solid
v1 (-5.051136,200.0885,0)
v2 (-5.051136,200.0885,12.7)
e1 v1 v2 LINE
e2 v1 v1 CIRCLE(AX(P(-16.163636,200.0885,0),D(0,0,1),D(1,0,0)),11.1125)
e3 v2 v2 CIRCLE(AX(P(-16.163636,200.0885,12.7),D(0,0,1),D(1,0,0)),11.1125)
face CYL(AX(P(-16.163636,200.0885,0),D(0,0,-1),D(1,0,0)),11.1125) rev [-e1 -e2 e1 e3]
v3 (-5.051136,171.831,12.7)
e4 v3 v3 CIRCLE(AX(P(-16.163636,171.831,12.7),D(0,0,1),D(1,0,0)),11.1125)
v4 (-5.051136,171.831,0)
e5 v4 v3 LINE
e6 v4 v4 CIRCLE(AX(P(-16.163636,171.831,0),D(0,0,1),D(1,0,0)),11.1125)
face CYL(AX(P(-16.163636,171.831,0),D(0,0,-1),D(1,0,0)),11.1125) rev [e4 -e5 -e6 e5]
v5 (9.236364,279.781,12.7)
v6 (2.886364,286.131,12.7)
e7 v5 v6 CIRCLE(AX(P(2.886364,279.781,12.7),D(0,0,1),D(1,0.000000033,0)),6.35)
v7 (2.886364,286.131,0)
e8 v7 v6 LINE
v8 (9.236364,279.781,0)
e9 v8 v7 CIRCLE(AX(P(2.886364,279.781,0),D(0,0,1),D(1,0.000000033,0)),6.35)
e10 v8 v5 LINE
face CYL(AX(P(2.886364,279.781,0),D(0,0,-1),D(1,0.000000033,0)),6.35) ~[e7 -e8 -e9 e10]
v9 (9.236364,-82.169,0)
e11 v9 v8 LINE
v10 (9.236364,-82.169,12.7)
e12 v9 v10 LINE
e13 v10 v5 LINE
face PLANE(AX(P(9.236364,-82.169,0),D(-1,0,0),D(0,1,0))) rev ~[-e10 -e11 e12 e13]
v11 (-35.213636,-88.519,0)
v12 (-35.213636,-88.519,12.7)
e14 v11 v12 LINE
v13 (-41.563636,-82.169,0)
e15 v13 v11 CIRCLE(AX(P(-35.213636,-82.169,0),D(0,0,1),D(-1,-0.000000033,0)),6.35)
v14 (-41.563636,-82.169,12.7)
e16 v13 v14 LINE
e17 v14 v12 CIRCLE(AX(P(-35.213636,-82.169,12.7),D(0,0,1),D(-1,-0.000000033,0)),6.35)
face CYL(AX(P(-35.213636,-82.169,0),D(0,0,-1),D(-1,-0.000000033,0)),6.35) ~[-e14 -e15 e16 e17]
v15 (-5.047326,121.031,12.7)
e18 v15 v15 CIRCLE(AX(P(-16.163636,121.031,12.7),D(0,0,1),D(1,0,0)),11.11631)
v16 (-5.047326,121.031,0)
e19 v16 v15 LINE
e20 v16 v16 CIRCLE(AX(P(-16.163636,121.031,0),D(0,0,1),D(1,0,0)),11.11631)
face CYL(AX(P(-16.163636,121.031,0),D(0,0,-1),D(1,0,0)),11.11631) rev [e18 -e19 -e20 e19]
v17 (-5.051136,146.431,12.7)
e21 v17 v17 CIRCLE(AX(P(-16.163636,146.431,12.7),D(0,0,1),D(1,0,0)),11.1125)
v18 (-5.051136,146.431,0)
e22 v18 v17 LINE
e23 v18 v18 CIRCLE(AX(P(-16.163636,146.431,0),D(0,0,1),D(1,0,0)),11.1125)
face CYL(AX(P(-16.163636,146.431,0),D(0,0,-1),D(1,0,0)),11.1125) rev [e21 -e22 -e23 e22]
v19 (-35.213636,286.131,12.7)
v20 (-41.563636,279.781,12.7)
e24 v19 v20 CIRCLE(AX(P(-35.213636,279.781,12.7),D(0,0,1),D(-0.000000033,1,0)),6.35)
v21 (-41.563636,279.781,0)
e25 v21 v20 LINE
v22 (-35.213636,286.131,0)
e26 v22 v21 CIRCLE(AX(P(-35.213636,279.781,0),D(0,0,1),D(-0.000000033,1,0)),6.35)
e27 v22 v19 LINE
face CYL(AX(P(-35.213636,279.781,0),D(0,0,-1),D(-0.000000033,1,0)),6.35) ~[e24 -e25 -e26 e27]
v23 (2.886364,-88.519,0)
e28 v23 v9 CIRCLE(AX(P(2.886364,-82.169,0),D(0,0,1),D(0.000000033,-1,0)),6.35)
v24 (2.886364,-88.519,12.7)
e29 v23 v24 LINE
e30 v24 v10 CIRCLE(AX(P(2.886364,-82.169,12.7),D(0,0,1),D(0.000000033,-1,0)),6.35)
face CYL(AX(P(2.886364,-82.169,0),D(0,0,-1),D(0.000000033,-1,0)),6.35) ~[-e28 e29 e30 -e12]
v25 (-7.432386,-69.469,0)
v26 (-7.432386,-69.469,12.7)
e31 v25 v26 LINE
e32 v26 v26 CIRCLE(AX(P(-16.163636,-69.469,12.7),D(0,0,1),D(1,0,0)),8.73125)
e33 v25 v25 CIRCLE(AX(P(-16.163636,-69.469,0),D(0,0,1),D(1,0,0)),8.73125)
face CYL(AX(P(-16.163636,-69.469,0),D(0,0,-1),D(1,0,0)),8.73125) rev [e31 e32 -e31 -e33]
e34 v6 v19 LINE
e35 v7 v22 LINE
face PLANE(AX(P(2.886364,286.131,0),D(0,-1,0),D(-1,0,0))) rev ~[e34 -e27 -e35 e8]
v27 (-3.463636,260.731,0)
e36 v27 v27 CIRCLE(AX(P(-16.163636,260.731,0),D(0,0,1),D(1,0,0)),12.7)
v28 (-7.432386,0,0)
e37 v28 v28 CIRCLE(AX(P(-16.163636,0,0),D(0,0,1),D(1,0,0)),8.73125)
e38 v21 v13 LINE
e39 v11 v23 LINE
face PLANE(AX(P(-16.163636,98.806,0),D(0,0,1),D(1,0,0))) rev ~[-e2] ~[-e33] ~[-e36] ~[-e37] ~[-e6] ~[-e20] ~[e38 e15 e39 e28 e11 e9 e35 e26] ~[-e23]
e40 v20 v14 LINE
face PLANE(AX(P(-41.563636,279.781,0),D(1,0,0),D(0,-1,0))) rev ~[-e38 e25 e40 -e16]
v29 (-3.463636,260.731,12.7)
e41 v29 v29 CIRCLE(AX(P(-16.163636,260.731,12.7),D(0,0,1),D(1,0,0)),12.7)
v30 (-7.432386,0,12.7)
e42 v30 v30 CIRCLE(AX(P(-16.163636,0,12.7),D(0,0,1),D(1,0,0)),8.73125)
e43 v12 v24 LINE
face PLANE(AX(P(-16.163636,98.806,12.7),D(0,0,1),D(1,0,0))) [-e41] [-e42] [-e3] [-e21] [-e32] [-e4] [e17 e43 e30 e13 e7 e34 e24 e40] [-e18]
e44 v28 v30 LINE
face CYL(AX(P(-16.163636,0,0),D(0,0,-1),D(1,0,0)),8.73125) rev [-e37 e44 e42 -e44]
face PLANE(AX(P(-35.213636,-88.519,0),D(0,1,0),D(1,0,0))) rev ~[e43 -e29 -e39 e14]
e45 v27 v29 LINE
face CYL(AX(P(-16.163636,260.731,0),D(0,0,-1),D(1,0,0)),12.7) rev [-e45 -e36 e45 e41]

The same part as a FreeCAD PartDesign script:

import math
import FreeCAD as App
import Part
import Sketcher
Q = App.Units.Quantity

doc = App.newDocument("Part")
body = doc.addObject("PartDesign::Body", "Body")

# Sketch on XY plane
sketch1 = doc.addObject("Sketcher::SketchObject", "Sketch")
body.addObject(sketch1)
sketch1.AttachmentSupport = (doc.XY_Plane, [""])
sketch1.MapMode = "FlatFace"
sketch1.addGeometry([
    Part.LineSegment(App.Vector(3, 286, 0), App.Vector(-35, 286, 0)),  # 0
    Part.ArcOfCircle(Part.Circle(App.Vector(-35, 280, 0), App.Vector(0, 0, 1), 6), math.radians(90), math.radians(180)),  # 1
    Part.LineSegment(App.Vector(-42, 280, 0), App.Vector(-42, -82, 0)),  # 2
    Part.ArcOfCircle(Part.Circle(App.Vector(-35, -82, 0), App.Vector(0, 0, 1), 6), math.radians(-180), math.radians(-90)),  # 3
    Part.LineSegment(App.Vector(-35, -89, 0), App.Vector(3, -89, 0)),  # 4
    Part.ArcOfCircle(Part.Circle(App.Vector(3, -82, 0), App.Vector(0, 0, 1), 6), math.radians(-90), math.radians(0)),  # 5
    Part.LineSegment(App.Vector(9, -82, 0), App.Vector(9, 280, 0)),  # 6
    Part.ArcOfCircle(Part.Circle(App.Vector(3, 280, 0), App.Vector(0, 0, 1), 6), math.radians(0), math.radians(90)),  # 7
    Part.Circle(App.Vector(-16, -69, 0), App.Vector(0, 0, 1), 9),  # 8
    Part.Circle(App.Vector(-16, 0, 0), App.Vector(0, 0, 1), 9),  # 9
    Part.Circle(App.Vector(-16, 121, 0), App.Vector(0, 0, 1), 11),  # 10
    Part.Circle(App.Vector(-16, 146, 0), App.Vector(0, 0, 1), 11),  # 11
    Part.Circle(App.Vector(-16, 172, 0), App.Vector(0, 0, 1), 11),  # 12
    Part.Circle(App.Vector(-16, 200, 0), App.Vector(0, 0, 1), 11),  # 13
    Part.Circle(App.Vector(-16, 261, 0), App.Vector(0, 0, 1), 13),  # 14
], False)
sketch1.addConstraint([
    Sketcher.Constraint("Tangent", 0, 2, 1, 1),
    Sketcher.Constraint("Tangent", 1, 2, 2, 1),
    Sketcher.Constraint("Tangent", 2, 2, 3, 1),
    Sketcher.Constraint("Tangent", 3, 2, 4, 1),
    Sketcher.Constraint("Tangent", 4, 2, 5, 1),
    Sketcher.Constraint("Tangent", 5, 2, 6, 1),
    Sketcher.Constraint("Tangent", 6, 2, 7, 1),
    Sketcher.Constraint("Tangent", 7, 2, 0, 1),
    Sketcher.Constraint("Horizontal", 0),
    Sketcher.Constraint("Vertical", 2),
    Sketcher.Constraint("Horizontal", 4),
    Sketcher.Constraint("Vertical", 6),
    Sketcher.Constraint("Equal", 1, 3),
    Sketcher.Constraint("Equal", 3, 5),
    Sketcher.Constraint("Equal", 5, 7),
    Sketcher.Constraint("Equal", 8, 9),
    Sketcher.Constraint("Equal", 11, 12),
    Sketcher.Constraint("Equal", 12, 13),
    Sketcher.Constraint("PointOnObject", 9, 3, -1),
    Sketcher.Constraint("Vertical", 8, 3, 9, 3),
    Sketcher.Constraint("Vertical", 9, 3, 10, 3),
    Sketcher.Constraint("Vertical", 10, 3, 11, 3),
    Sketcher.Constraint("Vertical", 11, 3, 12, 3),
    Sketcher.Constraint("Vertical", 12, 3, 13, 3),
    Sketcher.Constraint("Vertical", 13, 3, 14, 3),
    Sketcher.Constraint("Diameter", 14, Q("1 in")),
    Sketcher.Constraint("Radius", 1, Q("0.25 in")),
    Sketcher.Constraint("Diameter", 8, Q("0.6875 in")),
    Sketcher.Constraint("Diameter", 11, Q("0.875 in")),
    Sketcher.Constraint("DistanceX", 0, 2, 0, 1, Q("1.5 in")),
    Sketcher.Constraint("DistanceY", 3, 3, 10, 3, Q("8 in")),
    Sketcher.Constraint("DistanceY", 10, 3, 11, 3, Q("1 in")),
    Sketcher.Constraint("DistanceY", 11, 3, 12, 3, Q("1 in")),
    Sketcher.Constraint("DistanceY", 14, 3, 0, 2, Q("1 in")),
    Sketcher.Constraint("DistanceX", 1, 2, 14, 3, Q("1 in")),
    Sketcher.Constraint("Diameter", 10, Q("0.8753 in")),
    Sketcher.Constraint("DistanceY", 2, 2, 2, 1, Q("14.25 in")),
    Sketcher.Constraint("DistanceY", 3, 3, 8, 3, Q("0.5 in")),
    Sketcher.Constraint("DistanceY", -1, 1, 1, 3, Q("11.015 in")),
    Sketcher.Constraint("DistanceY", -1, 1, 13, 3, Q("7.8775 in")),
    Sketcher.Constraint("DistanceX", 1, 3, -1, 1, Q("35.213636 mm")),
])
pad1 = doc.addObject("PartDesign::Pad", "Pad")
body.addObject(pad1)
pad1.Profile = sketch1
pad1.Length = Q("0.5 in")

doc.recompute()
